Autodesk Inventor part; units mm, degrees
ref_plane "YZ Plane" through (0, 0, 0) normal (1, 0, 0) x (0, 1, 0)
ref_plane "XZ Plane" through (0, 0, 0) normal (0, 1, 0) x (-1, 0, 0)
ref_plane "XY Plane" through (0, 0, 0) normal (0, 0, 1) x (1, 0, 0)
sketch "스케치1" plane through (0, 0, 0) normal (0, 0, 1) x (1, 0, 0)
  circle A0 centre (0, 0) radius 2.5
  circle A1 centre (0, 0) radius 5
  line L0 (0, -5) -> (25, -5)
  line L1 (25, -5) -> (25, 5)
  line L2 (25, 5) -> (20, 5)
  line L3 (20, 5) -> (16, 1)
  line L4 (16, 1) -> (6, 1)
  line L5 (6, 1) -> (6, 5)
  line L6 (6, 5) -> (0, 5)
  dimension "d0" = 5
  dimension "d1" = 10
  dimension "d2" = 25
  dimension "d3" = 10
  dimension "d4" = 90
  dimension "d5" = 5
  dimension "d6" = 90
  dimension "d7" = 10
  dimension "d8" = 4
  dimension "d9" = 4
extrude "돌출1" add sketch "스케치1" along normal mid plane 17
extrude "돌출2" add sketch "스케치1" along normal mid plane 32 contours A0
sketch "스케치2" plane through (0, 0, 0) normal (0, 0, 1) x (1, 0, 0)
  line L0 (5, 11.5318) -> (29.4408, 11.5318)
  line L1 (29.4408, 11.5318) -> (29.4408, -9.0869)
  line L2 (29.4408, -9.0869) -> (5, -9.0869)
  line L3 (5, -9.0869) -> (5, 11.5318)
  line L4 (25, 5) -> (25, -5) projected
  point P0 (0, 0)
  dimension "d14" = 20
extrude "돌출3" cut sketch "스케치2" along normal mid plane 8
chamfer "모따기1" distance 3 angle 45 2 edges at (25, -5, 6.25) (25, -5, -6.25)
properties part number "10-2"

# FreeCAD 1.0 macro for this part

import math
import FreeCAD as App
import Part
import Sketcher

V = App.Vector


def edges_at(feature, points):
    """Names of the edges that pass closest to the given points."""
    edges = feature.Shape.Edges
    near = lambda p: min(range(len(edges)), key=lambda i: edges[i].distToShape(Part.Vertex(*p))[0])
    return sorted({f"Edge{near(p) + 1}" for p in points})


def add_polygon(sketch, points):
    """Adds a closed chain of lines whose ends are joined by coincident constraints."""
    first, n = sketch.GeometryCount, len(points)
    for a, b in zip(points, points[1:] + points[:1]):
        sketch.addGeometry(Part.LineSegment(App.Vector(*a, 0), App.Vector(*b, 0)), False)
    for i in range(n):
        sketch.addConstraint(Sketcher.Constraint("Coincident", first + i, 2, first + (i + 1) % n, 1))

doc = App.newDocument("Part")
body = doc.addObject("PartDesign::Body", "Body")

# Sketch on XY plane
sketch1 = body.newObject("Sketcher::SketchObject", "Sketch")
sketch1.AttachmentSupport = (doc.getObject("XY_Plane"), [""])
sketch1.MapMode = "FlatFace"
sketch1.addGeometry([
    Part.ArcOfCircle(Part.Circle(V(0, 0, 0), V(0, 0, 1), 5), math.radians(90), math.radians(270)),  # 0
    Part.LineSegment(V(0, -5, 0), V(25, -5, 0)),  # 1
    Part.LineSegment(V(25, -5, 0), V(25, 5, 0)),  # 2
    Part.LineSegment(V(25, 5, 0), V(20, 5, 0)),  # 3
    Part.LineSegment(V(20, 5, 0), V(16, 1, 0)),  # 4
    Part.LineSegment(V(16, 1, 0), V(6, 1, 0)),  # 5
    Part.LineSegment(V(6, 1, 0), V(6, 5, 0)),  # 6
    Part.LineSegment(V(6, 5, 0), V(0, 5, 0)),  # 7
    Part.Circle(V(0, 0, 0), V(0, 0, 1), 2.5),  # 8
], False)
sketch1.addConstraint([
    Sketcher.Constraint("Tangent", 0, 2, 1, 1),
    Sketcher.Constraint("Coincident", 1, 2, 2, 1),
    Sketcher.Constraint("Coincident", 2, 2, 3, 1),
    Sketcher.Constraint("Coincident", 3, 2, 4, 1),
    Sketcher.Constraint("Coincident", 4, 2, 5, 1),
    Sketcher.Constraint("Coincident", 5, 2, 6, 1),
    Sketcher.Constraint("Coincident", 6, 2, 7, 1),
    Sketcher.Constraint("Tangent", 7, 2, 0, 1),
    Sketcher.Constraint("Horizontal", 1),
    Sketcher.Constraint("Vertical", 2),
    Sketcher.Constraint("Horizontal", 3),
    Sketcher.Constraint("Horizontal", 5),
    Sketcher.Constraint("Vertical", 6),
    Sketcher.Constraint("Horizontal", 7),
    Sketcher.Constraint("Coincident", 0, 3, -1, 1),
    Sketcher.Constraint("Coincident", 8, 3, -1, 1),
    Sketcher.Constraint("Horizontal", 3, 2, 6, 2),
    Sketcher.Constraint("Equal", 5, 2),
    Sketcher.Constraint("Diameter", 8, 5.0),
    Sketcher.Constraint("Radius", 0, 5.0),
    Sketcher.Constraint("DistanceX", 1, 1, 1, 2, 25.0),
    Sketcher.Constraint("DistanceX", 3, 2, 3, 1, 5.0),
    Sketcher.Constraint("DistanceY", 6, 1, 6, 2, 4.0),
    Sketcher.Constraint("DistanceX", 4, 2, 3, 2, 4.0),
])
pad1 = body.newObject("PartDesign::Pad", "Pad")
pad1.Profile = sketch1
pad1.Length = 17
pad1.Midplane = True

# Sketch on XY plane
sketch2 = body.newObject("Sketcher::SketchObject", "Sketch001")
sketch2.AttachmentSupport = (doc.getObject("XY_Plane"), [""])
sketch2.MapMode = "FlatFace"
sketch2.addGeometry(Part.Circle(V(0, 0, 0), V(0, 0, 1), 2.5), False)
sketch2.addConstraint([
    Sketcher.Constraint("Coincident", 0, 3, -1, 1),
    Sketcher.Constraint("Diameter", 0, 5.0),
])
pad2 = body.newObject("PartDesign::Pad", "Pad001")
pad2.Profile = sketch2
pad2.Length = 32
pad2.Midplane = True

# Sketch on XY plane
sketch3 = body.newObject("Sketcher::SketchObject", "Sketch002")
sketch3.AttachmentSupport = (doc.getObject("XY_Plane"), [""])
sketch3.MapMode = "FlatFace"
add_polygon(sketch3, [(29.4408, 11.5318), (5, 11.5318), (5, -9.0869), (29.4408, -9.0869)])  # lines 0-3
sketch3.addConstraint([
    Sketcher.Constraint("Horizontal", 0),
    Sketcher.Constraint("Vertical", 1),
    Sketcher.Constraint("Horizontal", 2),
    Sketcher.Constraint("Vertical", 3),
    Sketcher.Constraint("DistanceX", -1, 1, 0, 2, 5.0),
    Sketcher.Constraint("DistanceX", 0, 2, 0, 1, 24.4408),
    Sketcher.Constraint("DistanceY", 1, 2, 1, 1, 20.6187),
    Sketcher.Constraint("DistanceY", 1, 2, -1, 1, 9.087),
])
pocket1 = body.newObject("PartDesign::Pocket", "Pocket")
pocket1.Profile = sketch3
pocket1.Length = 8
pocket1.Midplane = True
doc.recompute()

chamfer = body.newObject("PartDesign::Chamfer", "Chamfer")
chamfer.Base = (pocket1, edges_at(pocket1, [(25, -5, 6.25), (25, -5, -6.25)]))
chamfer.Size = 3

doc.recompute()
